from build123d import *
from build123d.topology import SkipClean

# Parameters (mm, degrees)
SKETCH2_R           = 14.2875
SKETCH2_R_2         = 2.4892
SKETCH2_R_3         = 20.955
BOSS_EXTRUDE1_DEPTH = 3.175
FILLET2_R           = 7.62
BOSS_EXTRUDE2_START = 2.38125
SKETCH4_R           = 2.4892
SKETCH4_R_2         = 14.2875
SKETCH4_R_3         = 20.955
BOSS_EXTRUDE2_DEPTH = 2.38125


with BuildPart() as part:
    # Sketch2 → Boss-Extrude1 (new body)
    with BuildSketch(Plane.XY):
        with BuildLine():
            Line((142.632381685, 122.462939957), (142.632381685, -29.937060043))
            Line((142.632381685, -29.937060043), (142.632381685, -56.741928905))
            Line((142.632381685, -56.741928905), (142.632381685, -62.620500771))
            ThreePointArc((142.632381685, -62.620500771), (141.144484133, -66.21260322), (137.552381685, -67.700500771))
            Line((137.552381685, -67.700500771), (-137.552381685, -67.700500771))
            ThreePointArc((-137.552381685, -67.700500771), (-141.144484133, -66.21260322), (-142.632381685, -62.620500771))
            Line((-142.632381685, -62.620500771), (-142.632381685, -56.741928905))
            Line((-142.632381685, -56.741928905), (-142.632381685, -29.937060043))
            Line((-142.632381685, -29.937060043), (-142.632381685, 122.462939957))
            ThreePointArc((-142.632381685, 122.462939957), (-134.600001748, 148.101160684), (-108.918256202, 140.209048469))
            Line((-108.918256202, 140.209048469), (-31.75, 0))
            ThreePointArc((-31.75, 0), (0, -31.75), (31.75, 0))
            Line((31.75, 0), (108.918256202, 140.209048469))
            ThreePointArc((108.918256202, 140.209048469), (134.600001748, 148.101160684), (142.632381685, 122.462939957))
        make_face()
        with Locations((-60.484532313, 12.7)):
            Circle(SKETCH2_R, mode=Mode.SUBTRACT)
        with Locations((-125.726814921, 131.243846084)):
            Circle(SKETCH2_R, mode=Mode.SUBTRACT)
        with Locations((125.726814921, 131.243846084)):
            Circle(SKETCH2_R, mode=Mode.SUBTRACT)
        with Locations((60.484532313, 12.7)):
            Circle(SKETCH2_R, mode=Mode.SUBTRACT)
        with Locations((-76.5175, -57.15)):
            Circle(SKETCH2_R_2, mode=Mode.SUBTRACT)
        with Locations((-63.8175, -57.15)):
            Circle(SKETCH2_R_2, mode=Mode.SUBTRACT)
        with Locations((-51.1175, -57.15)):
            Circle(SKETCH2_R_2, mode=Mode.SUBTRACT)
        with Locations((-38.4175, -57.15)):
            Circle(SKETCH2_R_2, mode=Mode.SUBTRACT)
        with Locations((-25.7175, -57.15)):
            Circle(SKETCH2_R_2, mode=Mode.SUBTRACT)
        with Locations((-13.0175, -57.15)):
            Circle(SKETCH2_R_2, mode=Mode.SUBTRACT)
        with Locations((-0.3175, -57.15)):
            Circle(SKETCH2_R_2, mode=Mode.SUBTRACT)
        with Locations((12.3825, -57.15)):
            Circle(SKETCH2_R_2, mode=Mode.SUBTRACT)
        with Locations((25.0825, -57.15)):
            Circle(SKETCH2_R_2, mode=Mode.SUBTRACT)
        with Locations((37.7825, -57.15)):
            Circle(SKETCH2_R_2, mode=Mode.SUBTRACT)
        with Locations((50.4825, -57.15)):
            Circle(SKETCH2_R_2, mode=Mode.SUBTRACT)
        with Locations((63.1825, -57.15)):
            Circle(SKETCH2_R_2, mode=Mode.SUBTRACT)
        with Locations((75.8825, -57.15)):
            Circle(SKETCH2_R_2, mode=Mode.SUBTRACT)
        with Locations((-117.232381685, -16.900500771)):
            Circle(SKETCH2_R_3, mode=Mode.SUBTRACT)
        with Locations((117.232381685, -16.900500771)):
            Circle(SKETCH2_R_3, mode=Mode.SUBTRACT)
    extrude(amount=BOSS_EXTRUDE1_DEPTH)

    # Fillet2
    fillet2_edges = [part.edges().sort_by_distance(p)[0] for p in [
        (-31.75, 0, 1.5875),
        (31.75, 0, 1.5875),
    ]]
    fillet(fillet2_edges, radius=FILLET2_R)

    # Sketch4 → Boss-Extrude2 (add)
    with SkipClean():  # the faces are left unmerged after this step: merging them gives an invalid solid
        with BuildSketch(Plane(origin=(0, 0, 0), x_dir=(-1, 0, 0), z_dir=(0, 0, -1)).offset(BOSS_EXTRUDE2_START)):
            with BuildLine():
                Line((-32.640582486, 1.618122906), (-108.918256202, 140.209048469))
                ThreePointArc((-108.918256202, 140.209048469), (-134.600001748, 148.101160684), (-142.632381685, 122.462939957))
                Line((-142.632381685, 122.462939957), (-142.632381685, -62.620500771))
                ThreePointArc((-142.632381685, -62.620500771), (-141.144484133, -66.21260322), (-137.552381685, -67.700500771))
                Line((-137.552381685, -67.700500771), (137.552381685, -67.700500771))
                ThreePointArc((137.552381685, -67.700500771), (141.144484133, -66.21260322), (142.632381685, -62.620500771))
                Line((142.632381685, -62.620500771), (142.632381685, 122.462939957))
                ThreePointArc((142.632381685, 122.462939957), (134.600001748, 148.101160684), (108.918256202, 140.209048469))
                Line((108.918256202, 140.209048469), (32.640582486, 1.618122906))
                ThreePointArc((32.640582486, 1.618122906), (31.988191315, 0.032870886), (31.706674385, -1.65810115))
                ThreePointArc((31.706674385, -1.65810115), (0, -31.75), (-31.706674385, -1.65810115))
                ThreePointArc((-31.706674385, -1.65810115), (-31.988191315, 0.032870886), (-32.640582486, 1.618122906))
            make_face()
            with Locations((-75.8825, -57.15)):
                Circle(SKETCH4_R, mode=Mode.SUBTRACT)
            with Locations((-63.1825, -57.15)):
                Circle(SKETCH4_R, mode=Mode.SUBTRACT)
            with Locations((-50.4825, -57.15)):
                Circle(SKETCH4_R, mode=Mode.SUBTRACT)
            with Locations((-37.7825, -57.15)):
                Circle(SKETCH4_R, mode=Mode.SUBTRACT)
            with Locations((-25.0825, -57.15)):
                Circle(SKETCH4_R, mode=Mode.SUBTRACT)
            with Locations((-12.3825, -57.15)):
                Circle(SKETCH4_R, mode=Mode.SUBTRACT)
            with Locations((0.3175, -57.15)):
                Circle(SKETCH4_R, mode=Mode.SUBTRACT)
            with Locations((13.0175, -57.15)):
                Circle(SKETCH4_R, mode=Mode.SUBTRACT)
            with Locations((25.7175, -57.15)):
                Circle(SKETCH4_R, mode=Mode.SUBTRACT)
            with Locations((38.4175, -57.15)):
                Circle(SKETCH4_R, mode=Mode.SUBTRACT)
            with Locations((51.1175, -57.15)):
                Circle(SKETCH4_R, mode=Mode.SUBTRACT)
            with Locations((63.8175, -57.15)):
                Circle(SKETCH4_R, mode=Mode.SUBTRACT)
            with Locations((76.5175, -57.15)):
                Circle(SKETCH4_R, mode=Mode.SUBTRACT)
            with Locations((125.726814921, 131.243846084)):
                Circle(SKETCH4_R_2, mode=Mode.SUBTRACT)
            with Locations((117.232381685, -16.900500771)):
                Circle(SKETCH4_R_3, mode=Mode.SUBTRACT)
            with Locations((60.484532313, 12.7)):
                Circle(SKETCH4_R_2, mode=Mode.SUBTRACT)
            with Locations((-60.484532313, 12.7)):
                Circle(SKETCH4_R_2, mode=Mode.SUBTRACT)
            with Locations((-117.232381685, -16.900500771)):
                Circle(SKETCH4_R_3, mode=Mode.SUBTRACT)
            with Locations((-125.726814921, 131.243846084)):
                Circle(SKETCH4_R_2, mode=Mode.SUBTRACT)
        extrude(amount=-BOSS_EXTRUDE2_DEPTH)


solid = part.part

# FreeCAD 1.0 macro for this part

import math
import FreeCAD as App
import Part
import Sketcher

V = App.Vector
Q = App.Units.Quantity


def edges_at(feature, points):
    """Names of the edges that pass closest to the given points."""
    edges = feature.Shape.Edges
    near = lambda p: min(range(len(edges)), key=lambda i: edges[i].distToShape(Part.Vertex(*p))[0])
    return sorted({f"Edge{near(p) + 1}" for p in points})

doc = App.newDocument("Part")
body = doc.addObject("PartDesign::Body", "Body")

# Sketch on XY plane
sketch1 = body.newObject("Sketcher::SketchObject", "Sketch")
sketch1.AttachmentSupport = (doc.getObject("XY_Plane"), [""])
sketch1.MapMode = "FlatFace"
sketch1.addGeometry([
    Part.LineSegment(V(142.6, -62.6, 0), V(142.6, 122.5, 0)),  # 0
    Part.ArcOfCircle(Part.Circle(V(125.7, 131.2, 0), V(0, 0, 1), 19.1), math.radians(-27), math.radians(152)),  # 1
    Part.LineSegment(V(108.9, 140.2, 0), V(31.8, 0, 0)),  # 2
    Part.ArcOfCircle(Part.Circle(V(0, 0, 0), V(0, 0, 1), 31.8), math.radians(180), math.radians(360)),  # 3
    Part.LineSegment(V(-31.8, 0, 0), V(-108.9, 140.2, 0)),  # 4
    Part.ArcOfCircle(Part.Circle(V(-125.7, 131.2, 0), V(0, 0, 1), 19.1), math.radians(28), math.radians(207)),  # 5
    Part.LineSegment(V(-142.6, 122.5, 0), V(-142.6, -62.6, 0)),  # 6
    Part.ArcOfCircle(Part.Circle(V(-137.6, -62.6, 0), V(0, 0, 1), 5.1), math.radians(180), math.radians(270)),  # 7
    Part.LineSegment(V(-137.6, -67.7, 0), V(137.6, -67.7, 0)),  # 8
    Part.ArcOfCircle(Part.Circle(V(137.6, -62.6, 0), V(0, 0, 1), 5.1), math.radians(-90), math.radians(0)),  # 9
    Part.Circle(V(75.9, -57.1, 0), V(0, 0, 1), 2.5),  # 10
    Part.Circle(V(117.2, -16.9, 0), V(0, 0, 1), 21),  # 11
    Part.Circle(V(63.2, -57.1, 0), V(0, 0, 1), 2.5),  # 12
    Part.Circle(V(50.5, -57.1, 0), V(0, 0, 1), 2.5),  # 13
    Part.Circle(V(37.8, -57.1, 0), V(0, 0, 1), 2.5),  # 14
    Part.Circle(V(25.1, -57.1, 0), V(0, 0, 1), 2.5),  # 15
    Part.Circle(V(12.4, -57.1, 0), V(0, 0, 1), 2.5),  # 16
    Part.Circle(V(60.5, 12.7, 0), V(0, 0, 1), 14.3),  # 17
    Part.Circle(V(-0.3, -57.1, 0), V(0, 0, 1), 2.5),  # 18
    Part.Circle(V(-13, -57.1, 0), V(0, 0, 1), 2.5),  # 19
    Part.Circle(V(-25.7, -57.1, 0), V(0, 0, 1), 2.5),  # 20
    Part.Circle(V(-38.4, -57.1, 0), V(0, 0, 1), 2.5),  # 21
    Part.Circle(V(-51.1, -57.1, 0), V(0, 0, 1), 2.5),  # 22
    Part.Circle(V(-63.8, -57.1, 0), V(0, 0, 1), 2.5),  # 23
    Part.Circle(V(-76.5, -57.1, 0), V(0, 0, 1), 2.5),  # 24
    Part.Circle(V(-117.2, -16.9, 0), V(0, 0, 1), 21),  # 25
    Part.Circle(V(-60.5, 12.7, 0), V(0, 0, 1), 14.3),  # 26
    Part.Circle(V(125.7, 131.2, 0), V(0, 0, 1), 14.3),  # 27
    Part.Circle(V(-125.7, 131.2, 0), V(0, 0, 1), 14.3),  # 28
], False)
sketch1.addConstraint([
    Sketcher.Constraint("Coincident", 0, 2, 1, 1),
    Sketcher.Constraint("Coincident", 1, 2, 2, 1),
    Sketcher.Constraint("Coincident", 2, 2, 3, 2),
    Sketcher.Constraint("Coincident", 3, 1, 4, 1),
    Sketcher.Constraint("Coincident", 4, 2, 5, 1),
    Sketcher.Constraint("Coincident", 5, 2, 6, 1),
    Sketcher.Constraint("Tangent", 6, 2, 7, 1),
    Sketcher.Constraint("Tangent", 7, 2, 8, 1),
    Sketcher.Constraint("Tangent", 8, 2, 9, 1),
    Sketcher.Constraint("Tangent", 9, 2, 0, 1),
    Sketcher.Constraint("Vertical", 0),
    Sketcher.Constraint("Vertical", 6),
    Sketcher.Constraint("Horizontal", 8),
    Sketcher.Constraint("Coincident", 3, 3, -1, 1),
    Sketcher.Constraint("Coincident", 27, 3, 1, 3),
    Sketcher.Constraint("Coincident", 28, 3, 5, 3),
    Sketcher.Constraint("Equal", 1, 5),
    Sketcher.Constraint("Equal", 7, 9),
    Sketcher.Constraint("Equal", 10, 12),
    Sketcher.Constraint("Equal", 12, 13),
    Sketcher.Constraint("Equal", 13, 14),
    Sketcher.Constraint("Equal", 14, 15),
    Sketcher.Constraint("Equal", 15, 16),
    Sketcher.Constraint("Equal", 16, 18),
    Sketcher.Constraint("Equal", 18, 19),
    Sketcher.Constraint("Equal", 19, 20),
    Sketcher.Constraint("Equal", 20, 21),
    Sketcher.Constraint("Equal", 21, 22),
    Sketcher.Constraint("Equal", 22, 23),
    Sketcher.Constraint("Equal", 23, 24),
    Sketcher.Constraint("Equal", 11, 25),
    Sketcher.Constraint("Equal", 17, 26),
    Sketcher.Constraint("Equal", 26, 27),
    Sketcher.Constraint("Equal", 27, 28),
    Sketcher.Constraint("Symmetric", 1, 3, 5, 3, -2),
    Sketcher.Constraint("Symmetric", 11, 3, 25, 3, -2),
    Sketcher.Constraint("Symmetric", 17, 3, 26, 3, -2),
    Sketcher.Constraint("PointOnObject", 2, 2, -1),
    Sketcher.Constraint("PointOnObject", 3, 1, -1),
    Sketcher.Constraint("Horizontal", 10, 3, 12, 3),
    Sketcher.Constraint("Horizontal", 12, 3, 13, 3),
    Sketcher.Constraint("Horizontal", 13, 3, 14, 3),
    Sketcher.Constraint("Horizontal", 14, 3, 15, 3),
    Sketcher.Constraint("Horizontal", 15, 3, 16, 3),
    Sketcher.Constraint("Horizontal", 16, 3, 18, 3),
    Sketcher.Constraint("Horizontal", 18, 3, 19, 3),
    Sketcher.Constraint("Horizontal", 19, 3, 20, 3),
    Sketcher.Constraint("Horizontal", 20, 3, 21, 3),
    Sketcher.Constraint("Horizontal", 21, 3, 22, 3),
    Sketcher.Constraint("Horizontal", 22, 3, 23, 3),
    Sketcher.Constraint("Horizontal", 23, 3, 24, 3),
    Sketcher.Constraint("Horizontal", 1, 2, 4, 2),
    Sketcher.Constraint("Horizontal", 0, 2, 5, 2),
    Sketcher.Constraint("Radius", 7, Q("0.2 in")),
    Sketcher.Constraint("Diameter", 11, Q("1.65 in")),
    Sketcher.Constraint("Radius", 1, Q("0.75 in")),
    Sketcher.Constraint("Radius", 3, Q("1.25 in")),
    Sketcher.Constraint("Diameter", 10, Q("0.196 in")),
    Sketcher.Constraint("Diameter", 17, Q("1.125 in")),
    Sketcher.Constraint("DistanceX", 13, 3, 10, 3, Q("1 in")),
    Sketcher.Constraint("DistanceX", 14, 3, 12, 3, Q("1 in")),
    Sketcher.Constraint("DistanceX", 15, 3, 13, 3, Q("1 in")),
    Sketcher.Constraint("DistanceX", 16, 3, 14, 3, Q("1 in")),
    Sketcher.Constraint("DistanceX", 18, 3, 15, 3, Q("1 in")),
    Sketcher.Constraint("DistanceX", 19, 3, 16, 3, Q("1 in")),
    Sketcher.Constraint("DistanceX", 20, 3, 18, 3, Q("1 in")),
    Sketcher.Constraint("DistanceX", 21, 3, 19, 3, Q("1 in")),
    Sketcher.Constraint("DistanceX", 22, 3, 20, 3, Q("1 in")),
    Sketcher.Constraint("DistanceX", 23, 3, 21, 3, Q("1 in")),
    Sketcher.Constraint("DistanceX", 24, 3, 22, 3, Q("1 in")),
    Sketcher.Constraint("DistanceX", 11, 3, 0, 2, Q("1 in")),
    Sketcher.Constraint("DistanceY", 7, 2, 25, 3, Q("2 in")),
    Sketcher.Constraint("DistanceY", -1, 1, 17, 3, Q("0.5 in")),
    Sketcher.Constraint("DistanceX", 12, 3, 10, 3, Q("0.5 in")),
    Sketcher.Constraint("DistanceY", 10, 3, -1, 1, Q("2.25 in")),
    Sketcher.Constraint("DistanceX", -1, 1, 10, 3, Q("2.9875 in")),
    Sketcher.Constraint("DistanceY", 0, 1, 0, 2, Q("185.083441 mm")),
    Sketcher.Constraint("DistanceY", 7, 3, -1, 1, Q("62.620501 mm")),
    Sketcher.Constraint("DistanceX", 8, 1, 8, 2, Q("275.104763 mm")),
    Sketcher.Constraint("DistanceY", -1, 1, 1, 2, Q("140.209048 mm")),
    Sketcher.Constraint("DistanceX", 5, 3, 1, 3, Q("251.45363 mm")),
    Sketcher.Constraint("DistanceX", 17, 3, 11, 3, Q("56.747849 mm")),
])
pad1 = body.newObject("PartDesign::Pad", "Pad")
pad1.Profile = sketch1
pad1.Length = Q("0.125 in")
doc.recompute()

fillet = body.newObject("PartDesign::Fillet", "Fillet")
fillet.Base = (pad1, edges_at(pad1, [(-31.75, 0, 1.587), (31.75, 0, 1.587)]))
fillet.Radius = Q("0.3 in")

# Sketch on XY plane
sketch2 = body.newObject("Sketcher::SketchObject", "Sketch001")
sketch2.AttachmentSupport = (doc.getObject("XY_Plane"), [""])
sketch2.MapMode = "FlatFace"
sketch2.AttachmentOffset = App.Placement(V(0, 0, -0.09375 * 25.4), App.Rotation())
sketch2.addGeometry([
    Part.LineSegment(V(32.640582, 1.618123, 0), V(108.918256, 140.209048, 0)),  # 0
    Part.ArcOfCircle(Part.Circle(V(125.726815, 131.243846, 0), V(0, 0, 1), 19.05), math.radians(-27.447778), math.radians(151.925821)),  # 1
    Part.LineSegment(V(142.632382, 122.46294, 0), V(142.632382, -62.620501, 0)),  # 2
    Part.ArcOfCircle(Part.Circle(V(137.552382, -62.620501, 0), V(0, 0, 1), 5.08), math.radians(-90), math.radians(0)),  # 3
    Part.LineSegment(V(137.552382, -67.700501, 0), V(-137.552382, -67.700501, 0)),  # 4
    Part.ArcOfCircle(Part.Circle(V(-137.552382, -62.620501, 0), V(0, 0, 1), 5.08), math.radians(180), math.radians(270)),  # 5
    Part.LineSegment(V(-142.632382, -62.620501, 0), V(-142.632382, 122.46294, 0)),  # 6
    Part.ArcOfCircle(Part.Circle(V(-125.726815, 131.243846, 0), V(0, 0, 1), 19.05), math.radians(28.074179), math.radians(207.447778)),  # 7
    Part.LineSegment(V(-108.918256, 140.209048, 0), V(-32.640582, 1.618123, 0)),  # 8
    Part.ArcOfCircle(Part.Circle(V(-39.316276, -2.056045, 0), V(0, 0, 1), 7.62), math.radians(2.993557), math.radians(28.827507)),  # 9
    Part.ArcOfCircle(Part.Circle(V(0, 0, 0), V(0, 0, 1), 31.75), math.radians(-177.006443), math.radians(-2.993557)),  # 10
    Part.ArcOfCircle(Part.Circle(V(39.316276, -2.056045, 0), V(0, 0, 1), 7.62), math.radians(151.172493), math.radians(177.006443)),  # 11
    Part.Circle(V(75.8825, -57.15, 0), V(0, 0, 1), 2.4892),  # 12
    Part.Circle(V(117.232382, -16.900501, 0), V(0, 0, 1), 20.955),  # 13
    Part.Circle(V(63.1825, -57.15, 0), V(0, 0, 1), 2.4892),  # 14
    Part.Circle(V(50.4825, -57.15, 0), V(0, 0, 1), 2.4892),  # 15
    Part.Circle(V(37.7825, -57.15, 0), V(0, 0, 1), 2.4892),  # 16
    Part.Circle(V(25.0825, -57.15, 0), V(0, 0, 1), 2.4892),  # 17
    Part.Circle(V(12.3825, -57.15, 0), V(0, 0, 1), 2.4892),  # 18
    Part.Circle(V(60.484532, 12.7, 0), V(0, 0, 1), 14.2875),  # 19
    Part.Circle(V(-0.3175, -57.15, 0), V(0, 0, 1), 2.4892),  # 20
    Part.Circle(V(-13.0175, -57.15, 0), V(0, 0, 1), 2.4892),  # 21
    Part.Circle(V(-25.7175, -57.15, 0), V(0, 0, 1), 2.4892),  # 22
    Part.Circle(V(-38.4175, -57.15, 0), V(0, 0, 1), 2.4892),  # 23
    Part.Circle(V(-51.1175, -57.15, 0), V(0, 0, 1), 2.4892),  # 24
    Part.Circle(V(-63.8175, -57.15, 0), V(0, 0, 1), 2.4892),  # 25
    Part.Circle(V(-76.5175, -57.15, 0), V(0, 0, 1), 2.4892),  # 26
    Part.Circle(V(-117.232382, -16.900501, 0), V(0, 0, 1), 20.955),  # 27
    Part.Circle(V(-60.484532, 12.7, 0), V(0, 0, 1), 14.2875),  # 28
    Part.Circle(V(125.726815, 131.243846, 0), V(0, 0, 1), 14.2875),  # 29
    Part.Circle(V(-125.726815, 131.243846, 0), V(0, 0, 1), 14.2875),  # 30
], False)
sketch2.addConstraint([
    Sketcher.Constraint("Coincident", 0, 2, 1, 2),
    Sketcher.Constraint("Coincident", 1, 1, 2, 1),
    Sketcher.Constraint("Coincident", 2, 2, 3, 2),
    Sketcher.Constraint("Coincident", 3, 1, 4, 1),
    Sketcher.Constraint("Coincident", 4, 2, 5, 2),
    Sketcher.Constraint("Coincident", 5, 1, 6, 1),
    Sketcher.Constraint("Coincident", 6, 2, 7, 2),
    Sketcher.Constraint("Coincident", 7, 1, 8, 1),
    Sketcher.Constraint("Coincident", 8, 2, 9, 2),
    Sketcher.Constraint("Coincident", 9, 1, 10, 1),
    Sketcher.Constraint("Coincident", 10, 2, 11, 2),
    Sketcher.Constraint("Coincident", 11, 1, 0, 1),
    Sketcher.Constraint("Vertical", 2),
    Sketcher.Constraint("Horizontal", 4),
    Sketcher.Constraint("Vertical", 6),
    Sketcher.Constraint("Coincident", 10, 3, -1, 1),
    Sketcher.Constraint("Coincident", 29, 3, 1, 3),
    Sketcher.Constraint("Coincident", 30, 3, 7, 3),
    Sketcher.Constraint("Radius", 3, Q("0.2 in")),
    Sketcher.Constraint("Radius", 5, Q("0.2 in")),
    Sketcher.Constraint("Radius", 9, Q("0.3 in")),
    Sketcher.Constraint("Radius", 11, Q("0.3 in")),
    Sketcher.Constraint("Diameter", 13, Q("1.65 in")),
    Sketcher.Constraint("Diameter", 27, Q("1.65 in")),
    Sketcher.Constraint("Radius", 1, Q("0.75 in")),
    Sketcher.Constraint("Radius", 7, Q("0.75 in")),
    Sketcher.Constraint("Radius", 10, Q("1.25 in")),
    Sketcher.Constraint("Diameter", 12, Q("0.196 in")),
    Sketcher.Constraint("Diameter", 14, Q("0.196 in")),
    Sketcher.Constraint("Diameter", 15, Q("0.196 in")),
    Sketcher.Constraint("Diameter", 16, Q("0.196 in")),
    Sketcher.Constraint("Diameter", 17, Q("0.196 in")),
    Sketcher.Constraint("Diameter", 18, Q("0.196 in")),
    Sketcher.Constraint("Diameter", 19, Q("1.125 in")),
    Sketcher.Constraint("Diameter", 20, Q("0.196 in")),
    Sketcher.Constraint("Diameter", 21, Q("0.196 in")),
    Sketcher.Constraint("Diameter", 22, Q("0.196 in")),
    Sketcher.Constraint("Diameter", 23, Q("0.196 in")),
    Sketcher.Constraint("Diameter", 24, Q("0.196 in")),
    Sketcher.Constraint("Diameter", 25, Q("0.196 in")),
    Sketcher.Constraint("Diameter", 26, Q("0.196 in")),
    Sketcher.Constraint("Diameter", 28, Q("1.125 in")),
    Sketcher.Constraint("Diameter", 29, Q("1.125 in")),
    Sketcher.Constraint("Diameter", 30, Q("1.125 in")),
    Sketcher.Constraint("DistanceX", 15, 3, 12, 3, Q("1 in")),
    Sketcher.Constraint("DistanceX", 16, 3, 14, 3, Q("1 in")),
    Sketcher.Constraint("DistanceX", 17, 3, 15, 3, Q("1 in")),
    Sketcher.Constraint("DistanceX", 18, 3, 16, 3, Q("1 in")),
    Sketcher.Constraint("DistanceX", 20, 3, 17, 3, Q("1 in")),
    Sketcher.Constraint("DistanceX", 21, 3, 18, 3, Q("1 in")),
    Sketcher.Constraint("DistanceX", 22, 3, 20, 3, Q("1 in")),
    Sketcher.Constraint("DistanceX", 23, 3, 21, 3, Q("1 in")),
    Sketcher.Constraint("DistanceX", 24, 3, 22, 3, Q("1 in")),
    Sketcher.Constraint("DistanceX", 25, 3, 23, 3, Q("1 in")),
    Sketcher.Constraint("DistanceX", 26, 3, 24, 3, Q("1 in")),
    Sketcher.Constraint("DistanceX", 13, 3, 1, 1, Q("1 in")),
    Sketcher.Constraint("DistanceY", 3, 1, 13, 3, Q("2 in")),
    Sketcher.Constraint("DistanceY", 4, 2, 27, 3, Q("2 in")),
    Sketcher.Constraint("DistanceX", 5, 1, 27, 3, Q("1 in")),
    Sketcher.Constraint("DistanceY", -1, 1, 19, 3, Q("0.5 in")),
    Sketcher.Constraint("DistanceY", -1, 1, 28, 3, Q("0.5 in")),
    Sketcher.Constraint("DistanceX", 14, 3, 12, 3, Q("0.5 in")),
    Sketcher.Constraint("DistanceY", 2, 2, 13, 3, Q("1.8 in")),
    Sketcher.Constraint("DistanceX", 3, 1, 2, 2, Q("0.2 in")),
    Sketcher.Constraint("DistanceX", 4, 2, 27, 3, Q("0.8 in")),
    Sketcher.Constraint("DistanceY", 4, 2, 5, 1, Q("0.2 in")),
    Sketcher.Constraint("DistanceY", 12, 3, -1, 1, Q("2.25 in")),
    Sketcher.Constraint("DistanceY", 14, 3, -1, 1, Q("2.25 in")),
    Sketcher.Constraint("DistanceY", 15, 3, -1, 1, Q("2.25 in")),
    Sketcher.Constraint("DistanceY", 16, 3, -1, 1, Q("2.25 in")),
    Sketcher.Constraint("DistanceY", 17, 3, -1, 1, Q("2.25 in")),
    Sketcher.Constraint("DistanceY", 18, 3, -1, 1, Q("2.25 in")),
    Sketcher.Constraint("DistanceY", 20, 3, -1, 1, Q("2.25 in")),
    Sketcher.Constraint("DistanceY", 21, 3, -1, 1, Q("2.25 in")),
    Sketcher.Constraint("DistanceY", 22, 3, -1, 1, Q("2.25 in")),
    Sketcher.Constraint("DistanceY", 23, 3, -1, 1, Q("2.25 in")),
    Sketcher.Constraint("DistanceY", 24, 3, -1, 1, Q("2.25 in")),
    Sketcher.Constraint("DistanceY", 25, 3, -1, 1, Q("2.25 in")),
    Sketcher.Constraint("DistanceY", 26, 3, -1, 1, Q("2.25 in")),
    Sketcher.Constraint("DistanceX", -1, 1, 12, 3, Q("2.9875 in")),
    Sketcher.Constraint("DistanceY", 2, 2, 2, 1, Q("185.083441 mm")),
    Sketcher.Constraint("DistanceY", 6, 1, 6, 2, Q("185.083441 mm")),
    Sketcher.Constraint("DistanceY", 3, 3, -1, 1, Q("62.620501 mm")),
    Sketcher.Constraint("DistanceY", 9, 1, -1, 1, Q("1.658101 mm")),
    Sketcher.Constraint("DistanceY", 10, 2, -1, 1, Q("1.658101 mm")),
    Sketcher.Constraint("DistanceX", 9, 3, 9, 1, Q("7.609602 mm")),
    Sketcher.Constraint("DistanceX", 10, 2, 11, 3, Q("7.609602 mm")),
    Sketcher.Constraint("Distance", 0, Q("158.195222 mm")),
    Sketcher.Constraint("Distance", 8, Q("158.195222 mm")),
    Sketcher.Constraint("DistanceX", 4, 2, 4, 1, Q("275.104763 mm")),
    Sketcher.Constraint("DistanceX", -1, 1, 3, 3, Q("137.552382 mm")),
    Sketcher.Constraint("DistanceY", -1, 1, 0, 2, Q("140.209048 mm")),
    Sketcher.Constraint("DistanceY", -1, 1, 7, 1, Q("140.209048 mm")),
    Sketcher.Constraint("DistanceX", 7, 3, 1, 3, Q("251.45363 mm")),
    Sketcher.Constraint("DistanceX", 7, 3, 9, 3, Q("86.410539 mm")),
    Sketcher.Constraint("DistanceX", 19, 3, 13, 3, Q("56.747849 mm")),
    Sketcher.Constraint("DistanceX", 27, 3, 28, 3, Q("56.747849 mm")),
])
pad2 = body.newObject("PartDesign::Pad", "Pad001")
pad2.Profile = sketch2
pad2.Length = Q("0.09375 in")

doc.recompute()
